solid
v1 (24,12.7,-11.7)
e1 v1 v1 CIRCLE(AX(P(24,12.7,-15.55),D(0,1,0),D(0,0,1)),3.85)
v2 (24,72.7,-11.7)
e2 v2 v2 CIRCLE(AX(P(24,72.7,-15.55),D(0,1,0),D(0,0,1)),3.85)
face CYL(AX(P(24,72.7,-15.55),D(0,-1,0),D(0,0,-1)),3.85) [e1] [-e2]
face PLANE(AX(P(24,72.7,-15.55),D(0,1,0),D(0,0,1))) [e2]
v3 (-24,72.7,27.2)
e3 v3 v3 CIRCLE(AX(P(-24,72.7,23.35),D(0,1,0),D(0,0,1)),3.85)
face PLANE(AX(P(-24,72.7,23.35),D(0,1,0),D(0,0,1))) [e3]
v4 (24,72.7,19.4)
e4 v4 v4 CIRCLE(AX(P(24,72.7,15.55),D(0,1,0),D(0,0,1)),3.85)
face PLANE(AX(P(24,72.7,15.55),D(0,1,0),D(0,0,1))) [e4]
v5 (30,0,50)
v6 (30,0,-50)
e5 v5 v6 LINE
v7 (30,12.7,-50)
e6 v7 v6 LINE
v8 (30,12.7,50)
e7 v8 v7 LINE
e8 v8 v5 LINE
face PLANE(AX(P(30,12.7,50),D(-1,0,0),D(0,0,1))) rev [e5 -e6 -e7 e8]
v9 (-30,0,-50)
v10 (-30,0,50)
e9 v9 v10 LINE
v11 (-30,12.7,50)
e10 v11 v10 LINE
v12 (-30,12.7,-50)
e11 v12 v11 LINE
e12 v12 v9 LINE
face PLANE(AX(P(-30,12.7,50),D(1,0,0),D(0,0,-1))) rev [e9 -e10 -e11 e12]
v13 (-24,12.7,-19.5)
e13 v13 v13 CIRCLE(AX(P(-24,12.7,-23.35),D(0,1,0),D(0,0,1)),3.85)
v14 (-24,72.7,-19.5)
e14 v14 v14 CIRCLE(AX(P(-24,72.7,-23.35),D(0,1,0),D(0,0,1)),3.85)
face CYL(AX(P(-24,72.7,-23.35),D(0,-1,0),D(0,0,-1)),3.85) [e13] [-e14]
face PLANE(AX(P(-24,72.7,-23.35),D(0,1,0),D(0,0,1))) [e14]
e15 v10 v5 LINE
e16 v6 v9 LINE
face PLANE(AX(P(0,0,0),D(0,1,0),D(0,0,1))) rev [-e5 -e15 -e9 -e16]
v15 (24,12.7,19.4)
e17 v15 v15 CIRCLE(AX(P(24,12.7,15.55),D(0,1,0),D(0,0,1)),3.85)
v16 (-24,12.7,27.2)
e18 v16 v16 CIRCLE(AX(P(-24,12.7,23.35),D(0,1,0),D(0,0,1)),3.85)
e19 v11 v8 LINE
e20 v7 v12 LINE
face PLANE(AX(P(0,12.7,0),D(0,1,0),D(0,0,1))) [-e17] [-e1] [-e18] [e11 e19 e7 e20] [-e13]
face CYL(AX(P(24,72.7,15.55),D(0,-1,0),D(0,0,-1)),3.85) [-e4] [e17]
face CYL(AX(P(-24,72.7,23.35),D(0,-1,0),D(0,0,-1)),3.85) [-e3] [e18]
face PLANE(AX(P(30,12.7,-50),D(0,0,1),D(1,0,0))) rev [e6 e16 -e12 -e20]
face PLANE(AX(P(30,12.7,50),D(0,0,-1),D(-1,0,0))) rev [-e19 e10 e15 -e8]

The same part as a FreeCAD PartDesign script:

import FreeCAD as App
import Part
import Sketcher


def add_polygon(sketch, points):
    """Adds a closed chain of lines whose ends are joined by coincident constraints."""
    first, n = sketch.GeometryCount, len(points)
    for a, b in zip(points, points[1:] + points[:1]):
        sketch.addGeometry(Part.LineSegment(App.Vector(*a, 0), App.Vector(*b, 0)), False)
    for i in range(n):
        sketch.addConstraint(Sketcher.Constraint("Coincident", first + i, 2, first + (i + 1) % n, 1))

doc = App.newDocument("Part")
params = doc.addObject("Spreadsheet::Sheet", "Params")
for row, (alias, value) in enumerate([
    ("sketch1_width", "60 mm"),
    ("sketch1_height", "100 mm"),
    ("pad1_length", "12.7 mm"),
    ("sketch2_diameter", "7.7 mm"),
    ("pad2_length", "60 mm"),
], start=1):
    params.set(f"A{row}", alias)
    params.set(f"B{row}", "=" + value)
    params.setAlias(f"B{row}", alias)

body = doc.addObject("PartDesign::Body", "Body")

# Sketch on XZ plane
sketch1 = body.newObject("Sketcher::SketchObject", "Sketch")
sketch1.AttachmentSupport = (doc.getObject("XZ_Plane"), [""])
sketch1.MapMode = "FlatFace"
add_polygon(sketch1, [(-30, -50), (-30, 50), (30, 50), (30, -50)])  # lines 0-3
sketch1.addConstraint(Sketcher.Constraint("Vertical", 0))
sketch1.addConstraint(Sketcher.Constraint("Horizontal", 1))
sketch1.addConstraint(Sketcher.Constraint("Vertical", 2))
sketch1.addConstraint(Sketcher.Constraint("Horizontal", 3))
sketch1.addConstraint(Sketcher.Constraint("Symmetric", 0, 2, 2, 2, -1, 1))
sketch1.addConstraint(Sketcher.Constraint("DistanceX", 1, 1, 1, 2, 60.0))
sketch1.addConstraint(Sketcher.Constraint("DistanceY", 0, 1, 0, 2, 100.0))
sketch1.setExpression("Constraints[9]", "Params.sketch1_width")
sketch1.setExpression("Constraints[10]", "Params.sketch1_height")
pad1 = body.newObject("PartDesign::Pad", "Pad")
pad1.Profile = sketch1
pad1.setExpression("Length", "Params.pad1_length")
pad1.Reversed = True

# Sketch on XZ plane
sketch2 = body.newObject("Sketcher::SketchObject", "Sketch001")
sketch2.AttachmentSupport = (doc.getObject("XZ_Plane"), [""])
sketch2.MapMode = "FlatFace"
sketch2.AttachmentOffset = App.Placement(App.Vector(0, 0, -12.7), App.Rotation())
sketch2.addGeometry(Part.Circle(App.Vector(-24, -23.4, 0), App.Vector(0, 0, 1), 3.9), False)
sketch2.addGeometry(Part.Circle(App.Vector(-24, 23.4, 0), App.Vector(0, 0, 1), 3.9), False)
sketch2.addGeometry(Part.Circle(App.Vector(24, 15.6, 0), App.Vector(0, 0, 1), 3.9), False)
sketch2.addGeometry(Part.Circle(App.Vector(24, -15.6, 0), App.Vector(0, 0, 1), 3.9), False)
sketch2.addConstraint(Sketcher.Constraint("Equal", 0, 1))
sketch2.addConstraint(Sketcher.Constraint("Equal", 1, 2))
sketch2.addConstraint(Sketcher.Constraint("Equal", 2, 3))
sketch2.addConstraint(Sketcher.Constraint("Symmetric", 0, 3, 1, 3, -1))
sketch2.addConstraint(Sketcher.Constraint("Symmetric", 2, 3, 3, 3, -1))
sketch2.addConstraint(Sketcher.Constraint("Diameter", 0, 7.7))
sketch2.addConstraint(Sketcher.Constraint("DistanceX", 0, 3, -1, 1, 24.0))
sketch2.addConstraint(Sketcher.Constraint("DistanceX", -1, 1, 2, 3, 24.0))
sketch2.addConstraint(Sketcher.Constraint("DistanceY", 0, 3, 1, 3, 46.7))
sketch2.addConstraint(Sketcher.Constraint("DistanceY", 2, 3, 1, 3, 7.8))
sketch2.setExpression("Constraints[5]", "Params.sketch2_diameter")
pad2 = body.newObject("PartDesign::Pad", "Pad001")
pad2.Profile = sketch2
pad2.setExpression("Length", "Params.pad2_length")
pad2.Reversed = True

doc.recompute()
